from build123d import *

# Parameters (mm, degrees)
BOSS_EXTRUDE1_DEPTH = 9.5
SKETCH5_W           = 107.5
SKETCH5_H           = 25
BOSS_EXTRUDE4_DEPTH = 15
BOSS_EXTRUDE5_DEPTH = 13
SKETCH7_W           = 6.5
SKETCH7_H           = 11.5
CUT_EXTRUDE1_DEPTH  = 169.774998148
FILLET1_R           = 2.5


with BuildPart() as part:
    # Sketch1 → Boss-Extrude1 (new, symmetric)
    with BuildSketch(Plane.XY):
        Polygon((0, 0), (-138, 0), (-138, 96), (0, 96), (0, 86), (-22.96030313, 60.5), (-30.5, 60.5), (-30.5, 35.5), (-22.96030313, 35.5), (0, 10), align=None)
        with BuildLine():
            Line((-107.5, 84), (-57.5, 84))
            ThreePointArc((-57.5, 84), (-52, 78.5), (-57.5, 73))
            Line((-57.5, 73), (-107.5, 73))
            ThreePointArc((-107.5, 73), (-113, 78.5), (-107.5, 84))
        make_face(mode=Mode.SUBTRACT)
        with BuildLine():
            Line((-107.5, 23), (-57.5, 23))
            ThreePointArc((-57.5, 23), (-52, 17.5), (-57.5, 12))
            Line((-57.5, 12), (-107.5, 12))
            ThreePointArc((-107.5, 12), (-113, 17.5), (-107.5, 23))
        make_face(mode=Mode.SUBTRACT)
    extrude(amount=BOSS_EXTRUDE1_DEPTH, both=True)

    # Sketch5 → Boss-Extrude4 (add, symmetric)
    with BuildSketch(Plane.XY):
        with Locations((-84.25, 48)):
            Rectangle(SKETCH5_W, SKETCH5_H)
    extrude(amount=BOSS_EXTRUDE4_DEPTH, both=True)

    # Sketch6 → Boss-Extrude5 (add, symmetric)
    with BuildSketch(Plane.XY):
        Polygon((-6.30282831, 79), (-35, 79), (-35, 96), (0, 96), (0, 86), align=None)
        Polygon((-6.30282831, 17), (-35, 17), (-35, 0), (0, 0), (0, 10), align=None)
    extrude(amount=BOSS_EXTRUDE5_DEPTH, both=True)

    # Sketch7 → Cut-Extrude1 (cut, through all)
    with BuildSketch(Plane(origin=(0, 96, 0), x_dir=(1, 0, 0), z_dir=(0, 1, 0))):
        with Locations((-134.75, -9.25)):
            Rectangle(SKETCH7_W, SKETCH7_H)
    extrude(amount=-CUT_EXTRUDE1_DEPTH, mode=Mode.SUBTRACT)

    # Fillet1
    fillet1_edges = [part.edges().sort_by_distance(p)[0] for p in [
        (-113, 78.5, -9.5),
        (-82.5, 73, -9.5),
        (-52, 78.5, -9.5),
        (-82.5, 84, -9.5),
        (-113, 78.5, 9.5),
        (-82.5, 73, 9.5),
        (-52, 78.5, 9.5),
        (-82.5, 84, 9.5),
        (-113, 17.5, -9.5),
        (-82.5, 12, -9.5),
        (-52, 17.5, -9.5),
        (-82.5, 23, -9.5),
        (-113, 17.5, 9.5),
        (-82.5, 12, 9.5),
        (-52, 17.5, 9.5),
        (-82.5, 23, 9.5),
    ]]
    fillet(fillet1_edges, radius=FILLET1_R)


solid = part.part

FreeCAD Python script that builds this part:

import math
import FreeCAD as App
import Part
import Sketcher

V = App.Vector
Q = App.Units.Quantity


def edges_at(feature, points):
    """Names of the edges that pass closest to the given points."""
    edges = feature.Shape.Edges
    near = lambda p: min(range(len(edges)), key=lambda i: edges[i].distToShape(Part.Vertex(*p))[0])
    return sorted({f"Edge{near(p) + 1}" for p in points})

doc = App.newDocument("Part")
body = doc.addObject("PartDesign::Body", "Body")

# Sketch on XY plane
sketch1 = body.newObject("Sketcher::SketchObject", "Sketch")
sketch1.AttachmentSupport = (doc.getObject("XY_Plane"), [""])
sketch1.MapMode = "FlatFace"
sketch1.addGeometry([
    Part.LineSegment(V(-138, 0, 0), V(0, 0, 0)),  # 0
    Part.LineSegment(V(0, 0, 0), V(0, 10, 0)),  # 1
    Part.LineSegment(V(0, 10, 0), V(-23, 36, 0)),  # 2
    Part.LineSegment(V(-23, 36, 0), V(-30, 36, 0)),  # 3
    Part.LineSegment(V(-30, 36, 0), V(-30, 60, 0)),  # 4
    Part.LineSegment(V(-30, 60, 0), V(-23, 60, 0)),  # 5
    Part.LineSegment(V(-23, 60, 0), V(0, 86, 0)),  # 6
    Part.LineSegment(V(0, 86, 0), V(0, 96, 0)),  # 7
    Part.LineSegment(V(0, 96, 0), V(-138, 96, 0)),  # 8
    Part.LineSegment(V(-138, 96, 0), V(-138, 0, 0)),  # 9
    Part.LineSegment(V(-108, 23, 0), V(-58, 23, 0)),  # 10
    Part.ArcOfCircle(Part.Circle(V(-58, 18, 0), V(0, 0, 1), 6), math.radians(-90), math.radians(90)),  # 11
    Part.LineSegment(V(-58, 12, 0), V(-108, 12, 0)),  # 12
    Part.ArcOfCircle(Part.Circle(V(-108, 18, 0), V(0, 0, 1), 6), math.radians(90), math.radians(270)),  # 13
    Part.LineSegment(V(-108, 84, 0), V(-58, 84, 0)),  # 14
    Part.ArcOfCircle(Part.Circle(V(-58, 78, 0), V(0, 0, 1), 6), math.radians(-90), math.radians(90)),  # 15
    Part.LineSegment(V(-58, 73, 0), V(-108, 73, 0)),  # 16
    Part.ArcOfCircle(Part.Circle(V(-108, 78, 0), V(0, 0, 1), 6), math.radians(90), math.radians(270)),  # 17
], False)
sketch1.addConstraint([
    Sketcher.Constraint("Coincident", 0, 2, 1, 1),
    Sketcher.Constraint("Coincident", 1, 2, 2, 1),
    Sketcher.Constraint("Coincident", 2, 2, 3, 1),
    Sketcher.Constraint("Coincident", 3, 2, 4, 1),
    Sketcher.Constraint("Coincident", 4, 2, 5, 1),
    Sketcher.Constraint("Coincident", 5, 2, 6, 1),
    Sketcher.Constraint("Coincident", 6, 2, 7, 1),
    Sketcher.Constraint("Coincident", 7, 2, 8, 1),
    Sketcher.Constraint("Coincident", 8, 2, 9, 1),
    Sketcher.Constraint("Coincident", 9, 2, 0, 1),
    Sketcher.Constraint("Tangent", 10, 2, 11, 2),
    Sketcher.Constraint("Tangent", 11, 1, 12, 1),
    Sketcher.Constraint("Tangent", 12, 2, 13, 2),
    Sketcher.Constraint("Tangent", 13, 1, 10, 1),
    Sketcher.Constraint("Tangent", 14, 2, 15, 2),
    Sketcher.Constraint("Tangent", 15, 1, 16, 1),
    Sketcher.Constraint("Tangent", 16, 2, 17, 2),
    Sketcher.Constraint("Tangent", 17, 1, 14, 1),
    Sketcher.Constraint("Horizontal", 0),
    Sketcher.Constraint("Vertical", 1),
    Sketcher.Constraint("Horizontal", 3),
    Sketcher.Constraint("Vertical", 4),
    Sketcher.Constraint("Horizontal", 5),
    Sketcher.Constraint("Vertical", 7),
    Sketcher.Constraint("Horizontal", 8),
    Sketcher.Constraint("Vertical", 9),
    Sketcher.Constraint("Horizontal", 10),
    Sketcher.Constraint("Horizontal", 12),
    Sketcher.Constraint("Horizontal", 14),
    Sketcher.Constraint("Horizontal", 16),
    Sketcher.Constraint("Coincident", 0, 2, -1, 1),
    Sketcher.Constraint("Equal", 13, 15),
    Sketcher.Constraint("PointOnObject", 6, 2, -2),
    Sketcher.Constraint("Vertical", 11, 3, 15, 3),
    Sketcher.Constraint("Vertical", 13, 3, 17, 3),
    Sketcher.Constraint("Vertical", 2, 2, 5, 2),
    Sketcher.Constraint("Equal", 1, 7),
    Sketcher.Constraint("Equal", 2, 6),
    Sketcher.Constraint("Radius", 11, Q("5.5 mm")),
    Sketcher.Constraint("DistanceX", 0, 1, 0, 2, Q("138 mm")),
    Sketcher.Constraint("DistanceX", 10, 1, 10, 2, Q("50 mm")),
    Sketcher.Constraint("DistanceY", 1, 1, 1, 2, Q("10 mm")),
    Sketcher.Constraint("DistanceY", 4, 1, 4, 2, Q("25 mm")),
    Sketcher.Constraint("DistanceY", 9, 2, 9, 1, Q("96 mm")),
    Sketcher.Constraint("Angle", 2, Q("132 deg")),
    Sketcher.Constraint("DistanceY", -1, 1, 10, 2, Q("23 mm")),
    Sketcher.Constraint("DistanceY", -1, 1, 14, 2, Q("84 mm")),
    Sketcher.Constraint("DistanceX", 11, 3, 3, 2, Q("27 mm")),
    Sketcher.Constraint("DistanceX", 11, 3, -1, 1, Q("57.5 mm")),
])
pad1 = body.newObject("PartDesign::Pad", "Pad")
pad1.Profile = sketch1
pad1.Length = 19
pad1.Midplane = True

# Sketch on XY plane
sketch2 = body.newObject("Sketcher::SketchObject", "Sketch001")
sketch2.AttachmentSupport = (doc.getObject("XY_Plane"), [""])
sketch2.MapMode = "FlatFace"
sketch2.addGeometry([
    Part.LineSegment(V(-138, 60, 0), V(-138, 36, 0)),
    Part.LineSegment(V(-138, 36, 0), V(-30, 36, 0)),
    Part.LineSegment(V(-30, 36, 0), V(-30, 60, 0)),
    Part.LineSegment(V(-30, 60, 0), V(-138, 60, 0)),
], False)
sketch2.addConstraint([
    Sketcher.Constraint("Coincident", 0, 2, 1, 1),
    Sketcher.Constraint("Coincident", 1, 2, 2, 1),
    Sketcher.Constraint("Coincident", 2, 2, 3, 1),
    Sketcher.Constraint("Coincident", 3, 2, 0, 1),
    Sketcher.Constraint("Vertical", 0),
    Sketcher.Constraint("Horizontal", 1),
    Sketcher.Constraint("Vertical", 2),
    Sketcher.Constraint("Horizontal", 3),
    Sketcher.Constraint("DistanceY", 0, 2, 0, 1, Q("25 mm")),
    Sketcher.Constraint("DistanceX", 1, 1, 1, 2, Q("107.5 mm")),
    Sketcher.Constraint("DistanceX", 0, 2, -1, 1, Q("138 mm")),
    Sketcher.Constraint("DistanceY", -1, 1, 0, 2, Q("35.5 mm")),
])
pad2 = body.newObject("PartDesign::Pad", "Pad001")
pad2.Profile = sketch2
pad2.Length = 30
pad2.Midplane = True

# Sketch on XY plane
sketch3 = body.newObject("Sketcher::SketchObject", "Sketch002")
sketch3.AttachmentSupport = (doc.getObject("XY_Plane"), [""])
sketch3.MapMode = "FlatFace"
sketch3.addGeometry([
    Part.LineSegment(V(-35, 79, 0), V(-6, 79, 0)),  # 0
    Part.LineSegment(V(-6, 79, 0), V(0, 86, 0)),  # 1
    Part.LineSegment(V(0, 86, 0), V(0, 96, 0)),  # 2
    Part.LineSegment(V(0, 96, 0), V(-35, 96, 0)),  # 3
    Part.LineSegment(V(-35, 96, 0), V(-35, 79, 0)),  # 4
    Part.LineSegment(V(-6, 17, 0), V(-35, 17, 0)),  # 5
    Part.LineSegment(V(-35, 17, 0), V(-35, 0, 0)),  # 6
    Part.LineSegment(V(-35, 0, 0), V(0, 0, 0)),  # 7
    Part.LineSegment(V(0, 0, 0), V(0, 10, 0)),  # 8
    Part.LineSegment(V(0, 10, 0), V(-6, 17, 0)),  # 9
], False)
sketch3.addConstraint([
    Sketcher.Constraint("Coincident", 0, 2, 1, 1),
    Sketcher.Constraint("Coincident", 1, 2, 2, 1),
    Sketcher.Constraint("Coincident", 2, 2, 3, 1),
    Sketcher.Constraint("Coincident", 3, 2, 4, 1),
    Sketcher.Constraint("Coincident", 4, 2, 0, 1),
    Sketcher.Constraint("Coincident", 5, 2, 6, 1),
    Sketcher.Constraint("Coincident", 6, 2, 7, 1),
    Sketcher.Constraint("Coincident", 7, 2, 8, 1),
    Sketcher.Constraint("Coincident", 8, 2, 9, 1),
    Sketcher.Constraint("Coincident", 9, 2, 5, 1),
    Sketcher.Constraint("Horizontal", 0),
    Sketcher.Constraint("Vertical", 2),
    Sketcher.Constraint("Horizontal", 3),
    Sketcher.Constraint("Vertical", 4),
    Sketcher.Constraint("Horizontal", 5),
    Sketcher.Constraint("Vertical", 6),
    Sketcher.Constraint("Horizontal", 7),
    Sketcher.Constraint("Vertical", 8),
    Sketcher.Constraint("Coincident", 7, 2, -1, 1),
    Sketcher.Constraint("PointOnObject", 1, 2, -2),
    Sketcher.Constraint("Vertical", 4, 2, 5, 2),
    Sketcher.Constraint("Vertical", 0, 2, 9, 2),
    Sketcher.Constraint("Equal", 4, 6),
    Sketcher.Constraint("Equal", 2, 8),
    Sketcher.Constraint("DistanceX", 3, 2, 3, 1, Q("35 mm")),
    Sketcher.Constraint("DistanceY", 2, 1, 2, 2, Q("10 mm")),
    Sketcher.Constraint("DistanceY", 4, 2, 4, 1, Q("17 mm")),
    Sketcher.Constraint("Angle", 1, Q("48 deg")),
    Sketcher.Constraint("DistanceY", -1, 1, 0, 2, Q("79 mm")),
])
pad3 = body.newObject("PartDesign::Pad", "Pad002")
pad3.Profile = sketch3
pad3.Length = 26
pad3.Midplane = True

# Sketch on XZ plane
sketch4 = body.newObject("Sketcher::SketchObject", "Sketch003")
sketch4.AttachmentSupport = (doc.getObject("XZ_Plane"), [""])
sketch4.MapMode = "FlatFace"
sketch4.AttachmentOffset = App.Placement(V(0, 0, -96), App.Rotation())
sketch4.addGeometry([
    Part.LineSegment(V(-138, 4, 0), V(-138, 15, 0)),
    Part.LineSegment(V(-138, 15, 0), V(-132, 15, 0)),
    Part.LineSegment(V(-132, 15, 0), V(-132, 4, 0)),
    Part.LineSegment(V(-132, 4, 0), V(-138, 4, 0)),
], False)
sketch4.addConstraint([
    Sketcher.Constraint("Coincident", 0, 2, 1, 1),
    Sketcher.Constraint("Coincident", 1, 2, 2, 1),
    Sketcher.Constraint("Coincident", 2, 2, 3, 1),
    Sketcher.Constraint("Coincident", 3, 2, 0, 1),
    Sketcher.Constraint("Vertical", 0),
    Sketcher.Constraint("Horizontal", 1),
    Sketcher.Constraint("Vertical", 2),
    Sketcher.Constraint("Horizontal", 3),
    Sketcher.Constraint("DistanceX", 1, 1, 1, 2, Q("6.5 mm")),
    Sketcher.Constraint("DistanceY", 0, 1, 0, 2, Q("11.5 mm")),
    Sketcher.Constraint("DistanceX", 0, 2, -1, 1, Q("138 mm")),
    Sketcher.Constraint("DistanceY", -1, 1, 0, 2, Q("15 mm")),
])
pocket1 = body.newObject("PartDesign::Pocket", "Pocket")
pocket1.Profile = sketch4
pocket1.Type = "ThroughAll"
pocket1.Reversed = True
doc.recompute()

fillet = body.newObject("PartDesign::Fillet", "Fillet")
fillet.Base = (pocket1, edges_at(pocket1, [
    (-113, 78.5, -9.5),
    (-82.5, 73, -9.5),
    (-52, 78.5, -9.5),
    (-82.5, 84, -9.5),
    (-113, 78.5, 9.5),
    (-82.5, 73, 9.5),
    (-52, 78.5, 9.5),
    (-82.5, 84, 9.5),
    (-113, 17.5, -9.5),
    (-82.5, 12, -9.5),
    (-52, 17.5, -9.5),
    (-82.5, 23, -9.5),
    (-113, 17.5, 9.5),
    (-82.5, 12, 9.5),
    (-52, 17.5, 9.5),
    (-82.5, 23, 9.5),
]))
fillet.Radius = 2.5

doc.recompute()
